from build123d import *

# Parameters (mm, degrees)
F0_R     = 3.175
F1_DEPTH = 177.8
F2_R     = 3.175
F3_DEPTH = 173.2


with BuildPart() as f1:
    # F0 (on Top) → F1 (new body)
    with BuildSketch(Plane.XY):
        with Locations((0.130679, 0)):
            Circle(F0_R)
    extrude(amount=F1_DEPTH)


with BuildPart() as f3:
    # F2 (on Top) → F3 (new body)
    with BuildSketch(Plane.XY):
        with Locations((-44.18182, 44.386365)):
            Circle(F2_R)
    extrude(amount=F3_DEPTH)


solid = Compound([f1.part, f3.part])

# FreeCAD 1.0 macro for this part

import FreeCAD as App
import Part
import Sketcher
from FreeCAD import Vector
Q = App.Units.Quantity

doc = App.newDocument("Part")
body = doc.addObject("PartDesign::Body", "Body")

sketch1 = body.newObject("Sketcher::SketchObject", "Sketch")
sketch1.AttachmentSupport = (doc.getObject("XY_Plane"), [""])
sketch1.MapMode = "FlatFace"
sketch1.addGeometry(Part.Circle(Vector(0.1, 0, 0), Vector(0, 0, 1), 3.2), False)
sketch1.addConstraint([
    Sketcher.Constraint("PointOnObject", 0, 3, -1),
    Sketcher.Constraint("Diameter", 0, Q("0.25 in")),
    Sketcher.Constraint("DistanceX", -1, 1, 0, 3, 0.130679),
])
pad1 = body.newObject("PartDesign::Pad", "Pad")
pad1.Profile = sketch1
pad1.Length = Q("7 in")
body2 = doc.addObject("PartDesign::Body", "Body001")

sketch2 = body2.newObject("Sketcher::SketchObject", "Sketch001")
sketch2.AttachmentSupport = (doc.getObject("XY_Plane001"), [""])
sketch2.MapMode = "FlatFace"
sketch2.addGeometry(Part.Circle(Vector(-44.2, 44.4, 0), Vector(0, 0, 1), 3.2), False)
sketch2.addConstraint([
    Sketcher.Constraint("Diameter", 0, Q("0.25 in")),
    Sketcher.Constraint("DistanceX", 0, 3, -1, 1, 44.18182),
    Sketcher.Constraint("DistanceY", -1, 1, 0, 3, 44.386365),
])
pad2 = body2.newObject("PartDesign::Pad", "Pad001")
pad2.Profile = sketch2
pad2.Length = 173.2

doc.recompute()
